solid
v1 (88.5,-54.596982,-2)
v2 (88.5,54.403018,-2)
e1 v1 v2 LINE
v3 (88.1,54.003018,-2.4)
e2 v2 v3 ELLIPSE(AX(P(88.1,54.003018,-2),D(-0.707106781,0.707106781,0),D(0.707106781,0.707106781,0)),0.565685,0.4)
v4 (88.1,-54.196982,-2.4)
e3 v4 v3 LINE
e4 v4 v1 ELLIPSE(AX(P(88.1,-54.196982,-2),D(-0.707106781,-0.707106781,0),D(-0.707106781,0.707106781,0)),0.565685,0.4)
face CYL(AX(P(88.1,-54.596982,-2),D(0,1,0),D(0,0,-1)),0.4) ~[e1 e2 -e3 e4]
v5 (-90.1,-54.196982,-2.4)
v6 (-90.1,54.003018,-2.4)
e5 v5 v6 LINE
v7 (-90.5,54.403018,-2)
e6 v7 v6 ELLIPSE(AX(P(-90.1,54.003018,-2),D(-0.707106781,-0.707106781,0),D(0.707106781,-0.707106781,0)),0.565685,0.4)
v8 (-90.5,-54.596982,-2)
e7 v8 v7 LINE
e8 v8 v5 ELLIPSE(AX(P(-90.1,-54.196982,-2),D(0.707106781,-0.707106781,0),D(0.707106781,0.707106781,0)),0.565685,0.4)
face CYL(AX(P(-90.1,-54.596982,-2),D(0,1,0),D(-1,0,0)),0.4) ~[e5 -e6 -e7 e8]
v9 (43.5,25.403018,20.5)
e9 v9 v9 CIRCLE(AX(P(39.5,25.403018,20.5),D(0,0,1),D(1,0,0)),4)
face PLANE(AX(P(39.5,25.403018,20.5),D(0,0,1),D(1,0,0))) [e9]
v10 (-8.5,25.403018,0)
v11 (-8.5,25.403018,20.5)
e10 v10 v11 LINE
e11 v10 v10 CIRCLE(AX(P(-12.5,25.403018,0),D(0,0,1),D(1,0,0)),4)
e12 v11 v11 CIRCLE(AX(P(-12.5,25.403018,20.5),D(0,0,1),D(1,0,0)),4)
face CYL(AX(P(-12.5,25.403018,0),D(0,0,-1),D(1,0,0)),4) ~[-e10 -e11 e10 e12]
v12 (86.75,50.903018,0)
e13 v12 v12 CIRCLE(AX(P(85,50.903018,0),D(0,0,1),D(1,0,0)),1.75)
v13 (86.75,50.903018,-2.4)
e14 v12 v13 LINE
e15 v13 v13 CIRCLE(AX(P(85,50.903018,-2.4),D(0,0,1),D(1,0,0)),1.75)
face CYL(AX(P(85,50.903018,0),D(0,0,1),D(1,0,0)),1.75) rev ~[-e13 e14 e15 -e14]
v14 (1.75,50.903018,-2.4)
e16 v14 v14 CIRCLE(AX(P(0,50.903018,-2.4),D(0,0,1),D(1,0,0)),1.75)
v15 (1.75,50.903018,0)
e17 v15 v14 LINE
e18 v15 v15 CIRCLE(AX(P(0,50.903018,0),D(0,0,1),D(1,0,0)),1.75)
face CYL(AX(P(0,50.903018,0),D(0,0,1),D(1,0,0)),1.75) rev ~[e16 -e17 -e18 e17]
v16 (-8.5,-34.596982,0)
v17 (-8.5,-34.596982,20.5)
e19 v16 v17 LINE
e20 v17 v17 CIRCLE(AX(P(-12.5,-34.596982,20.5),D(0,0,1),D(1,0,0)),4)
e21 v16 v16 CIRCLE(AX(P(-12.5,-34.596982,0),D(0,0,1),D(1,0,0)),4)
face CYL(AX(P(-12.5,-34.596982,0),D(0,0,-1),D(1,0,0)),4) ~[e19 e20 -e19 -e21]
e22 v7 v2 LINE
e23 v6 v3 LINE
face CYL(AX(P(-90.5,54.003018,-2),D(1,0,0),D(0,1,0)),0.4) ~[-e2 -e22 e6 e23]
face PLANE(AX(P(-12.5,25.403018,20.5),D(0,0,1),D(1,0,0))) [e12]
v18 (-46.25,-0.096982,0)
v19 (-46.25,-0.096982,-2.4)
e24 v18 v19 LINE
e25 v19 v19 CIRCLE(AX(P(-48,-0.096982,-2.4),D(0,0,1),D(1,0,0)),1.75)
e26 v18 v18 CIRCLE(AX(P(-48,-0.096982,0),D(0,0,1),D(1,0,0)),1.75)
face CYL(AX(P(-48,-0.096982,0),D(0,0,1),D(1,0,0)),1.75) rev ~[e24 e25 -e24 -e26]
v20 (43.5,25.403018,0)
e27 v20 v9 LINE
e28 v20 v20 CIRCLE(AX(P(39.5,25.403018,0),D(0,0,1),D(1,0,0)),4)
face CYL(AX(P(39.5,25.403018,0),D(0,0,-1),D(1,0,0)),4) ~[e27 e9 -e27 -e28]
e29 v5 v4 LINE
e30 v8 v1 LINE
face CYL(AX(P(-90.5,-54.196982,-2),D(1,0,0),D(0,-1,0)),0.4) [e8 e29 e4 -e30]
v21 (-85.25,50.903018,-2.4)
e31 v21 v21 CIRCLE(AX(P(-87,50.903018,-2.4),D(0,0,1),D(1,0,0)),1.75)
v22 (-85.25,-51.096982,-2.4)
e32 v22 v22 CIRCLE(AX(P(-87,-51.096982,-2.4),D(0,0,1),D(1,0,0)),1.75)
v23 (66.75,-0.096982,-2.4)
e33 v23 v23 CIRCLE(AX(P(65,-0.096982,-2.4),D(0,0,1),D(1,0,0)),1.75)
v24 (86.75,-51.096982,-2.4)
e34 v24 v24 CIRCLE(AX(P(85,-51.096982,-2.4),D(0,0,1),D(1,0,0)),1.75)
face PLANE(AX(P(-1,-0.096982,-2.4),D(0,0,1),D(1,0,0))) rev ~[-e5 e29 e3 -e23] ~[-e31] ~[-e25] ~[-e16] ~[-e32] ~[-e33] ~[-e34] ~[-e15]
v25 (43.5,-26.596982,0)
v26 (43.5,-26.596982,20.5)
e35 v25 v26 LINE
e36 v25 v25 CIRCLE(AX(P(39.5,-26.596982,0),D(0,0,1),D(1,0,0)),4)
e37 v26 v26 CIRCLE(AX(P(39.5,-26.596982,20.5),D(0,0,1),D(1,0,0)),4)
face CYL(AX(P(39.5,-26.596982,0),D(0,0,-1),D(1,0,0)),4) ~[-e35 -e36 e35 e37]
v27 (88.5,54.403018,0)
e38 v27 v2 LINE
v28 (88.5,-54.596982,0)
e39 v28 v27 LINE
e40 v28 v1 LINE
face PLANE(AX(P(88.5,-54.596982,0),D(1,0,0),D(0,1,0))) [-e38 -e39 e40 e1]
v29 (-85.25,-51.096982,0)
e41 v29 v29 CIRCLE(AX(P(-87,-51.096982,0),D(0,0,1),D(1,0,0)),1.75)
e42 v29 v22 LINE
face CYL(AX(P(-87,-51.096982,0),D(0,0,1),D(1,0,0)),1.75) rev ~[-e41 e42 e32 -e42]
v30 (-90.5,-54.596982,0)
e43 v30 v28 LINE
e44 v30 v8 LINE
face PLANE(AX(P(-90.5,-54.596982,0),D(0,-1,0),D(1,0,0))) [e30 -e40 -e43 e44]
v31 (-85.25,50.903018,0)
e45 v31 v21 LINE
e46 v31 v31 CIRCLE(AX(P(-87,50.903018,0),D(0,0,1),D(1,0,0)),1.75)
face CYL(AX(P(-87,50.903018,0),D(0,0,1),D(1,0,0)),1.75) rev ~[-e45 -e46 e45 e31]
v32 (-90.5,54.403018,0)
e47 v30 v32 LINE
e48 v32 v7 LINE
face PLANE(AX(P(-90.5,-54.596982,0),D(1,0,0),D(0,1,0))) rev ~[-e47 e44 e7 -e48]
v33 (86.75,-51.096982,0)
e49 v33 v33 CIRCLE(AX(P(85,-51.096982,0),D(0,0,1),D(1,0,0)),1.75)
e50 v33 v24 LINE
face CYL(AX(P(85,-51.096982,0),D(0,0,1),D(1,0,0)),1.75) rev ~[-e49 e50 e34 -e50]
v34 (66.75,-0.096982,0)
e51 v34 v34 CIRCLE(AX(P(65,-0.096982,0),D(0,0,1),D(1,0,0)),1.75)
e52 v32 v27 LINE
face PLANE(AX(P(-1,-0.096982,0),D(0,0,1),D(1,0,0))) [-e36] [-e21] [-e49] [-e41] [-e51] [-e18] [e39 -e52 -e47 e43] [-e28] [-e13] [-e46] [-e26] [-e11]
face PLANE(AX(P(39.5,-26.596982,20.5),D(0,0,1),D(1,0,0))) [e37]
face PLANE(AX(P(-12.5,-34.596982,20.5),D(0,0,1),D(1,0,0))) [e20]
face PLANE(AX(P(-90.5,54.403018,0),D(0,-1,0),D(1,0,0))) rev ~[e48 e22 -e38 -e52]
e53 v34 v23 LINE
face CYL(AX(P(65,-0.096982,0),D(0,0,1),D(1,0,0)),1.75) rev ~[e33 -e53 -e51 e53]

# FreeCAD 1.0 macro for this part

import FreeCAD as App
import Part
import Sketcher
Q = App.Units.Quantity


def edges_at(feature, points):
    """Names of the edges that pass closest to the given points."""
    edges = feature.Shape.Edges
    near = lambda p: min(range(len(edges)), key=lambda i: edges[i].distToShape(Part.Vertex(*p))[0])
    return sorted({f"Edge{near(p) + 1}" for p in points})

doc = App.newDocument("Part")
body = doc.addObject("PartDesign::Body", "Body")

sketch1 = body.newObject("Sketcher::SketchObject", "Sketch")
sketch1.AttachmentSupport = (doc.getObject("XY_Plane"), [""])
sketch1.MapMode = "FlatFace"
sketch1.addGeometry([
    Part.LineSegment(App.Vector(-90.5, 54.4, 0), App.Vector(-90.5, -54.6, 0)),
    Part.LineSegment(App.Vector(-90.5, -54.6, 0), App.Vector(88.5, -54.6, 0)),
    Part.LineSegment(App.Vector(88.5, -54.6, 0), App.Vector(88.5, 54.4, 0)),
    Part.LineSegment(App.Vector(88.5, 54.4, 0), App.Vector(-90.5, 54.4, 0)),
    Part.Circle(App.Vector(-87, -51.1, 0), App.Vector(0, 0, 1), 1.8),
    Part.Circle(App.Vector(85, -51.1, 0), App.Vector(0, 0, 1), 1.8),
    Part.Circle(App.Vector(-48, -0.1, 0), App.Vector(0, 0, 1), 1.8),
    Part.Circle(App.Vector(-87, 50.9, 0), App.Vector(0, 0, 1), 1.8),
    Part.Circle(App.Vector(65, -0.1, 0), App.Vector(0, 0, 1), 1.8),
    Part.Circle(App.Vector(0, 50.9, 0), App.Vector(0, 0, 1), 1.8),
    Part.Circle(App.Vector(85, 50.9, 0), App.Vector(0, 0, 1), 1.8),
], False)
sketch1.addConstraint([
    Sketcher.Constraint("Coincident", 0, 2, 1, 1),
    Sketcher.Constraint("Coincident", 1, 2, 2, 1),
    Sketcher.Constraint("Coincident", 2, 2, 3, 1),
    Sketcher.Constraint("Coincident", 3, 2, 0, 1),
    Sketcher.Constraint("Vertical", 0),
    Sketcher.Constraint("Horizontal", 1),
    Sketcher.Constraint("Vertical", 2),
    Sketcher.Constraint("Horizontal", 3),
    Sketcher.Constraint("Equal", 4, 5),
    Sketcher.Constraint("Equal", 5, 6),
    Sketcher.Constraint("Equal", 6, 7),
    Sketcher.Constraint("Equal", 7, 8),
    Sketcher.Constraint("Equal", 8, 9),
    Sketcher.Constraint("Equal", 9, 10),
    Sketcher.Constraint("PointOnObject", 9, 3, -2),
    Sketcher.Constraint("Horizontal", 4, 3, 5, 3),
    Sketcher.Constraint("Horizontal", 6, 3, 8, 3),
    Sketcher.Constraint("Horizontal", 7, 3, 9, 3),
    Sketcher.Constraint("Horizontal", 9, 3, 10, 3),
    Sketcher.Constraint("Vertical", 4, 3, 7, 3),
    Sketcher.Constraint("Vertical", 5, 3, 10, 3),
    Sketcher.Constraint("Diameter", 4, Q("3.5 mm")),
    Sketcher.Constraint("DistanceX", 1, 1, 1, 2, Q("179 mm")),
    Sketcher.Constraint("DistanceY", 0, 2, 0, 1, Q("109 mm")),
    Sketcher.Constraint("DistanceX", 4, 3, -1, 1, Q("87 mm")),
    Sketcher.Constraint("DistanceX", -1, 1, 5, 3, Q("85 mm")),
    Sketcher.Constraint("DistanceX", 6, 3, -1, 1, Q("48 mm")),
    Sketcher.Constraint("DistanceX", -1, 1, 8, 3, Q("65 mm")),
    Sketcher.Constraint("DistanceY", 4, 3, 6, 3, Q("51 mm")),
    Sketcher.Constraint("DistanceY", 6, 3, 7, 3, Q("51 mm")),
    Sketcher.Constraint("DistanceX", 0, 2, -1, 1, Q("90.5 mm")),
    Sketcher.Constraint("DistanceY", 0, 2, 4, 3, Q("3.5 mm")),
    Sketcher.Constraint("DistanceY", 4, 3, -1, 1, Q("51.096982 mm")),
])
pad1 = body.newObject("PartDesign::Pad", "Pad")
pad1.Profile = sketch1
pad1.Length = 2.4
pad1.Reversed = True

sketch2 = body.newObject("Sketcher::SketchObject", "Sketch001")
sketch2.AttachmentSupport = (doc.getObject("XY_Plane"), [""])
sketch2.MapMode = "FlatFace"
sketch2.addGeometry([
    Part.Circle(App.Vector(-12.5, 25.4, 0), App.Vector(0, 0, 1), 4),
    Part.Circle(App.Vector(-12.5, -34.6, 0), App.Vector(0, 0, 1), 4),
    Part.Circle(App.Vector(39.5, -26.6, 0), App.Vector(0, 0, 1), 4),
    Part.Circle(App.Vector(39.5, 25.4, 0), App.Vector(0, 0, 1), 4),
], False)
sketch2.addConstraint([
    Sketcher.Constraint("Equal", 0, 1),
    Sketcher.Constraint("Equal", 1, 2),
    Sketcher.Constraint("Equal", 2, 3),
    Sketcher.Constraint("Horizontal", 0, 3, 3, 3),
    Sketcher.Constraint("Vertical", 0, 3, 1, 3),
    Sketcher.Constraint("Vertical", 2, 3, 3, 3),
    Sketcher.Constraint("Diameter", 0, Q("8 mm")),
    Sketcher.Constraint("DistanceY", 1, 3, 0, 3, Q("60 mm")),
    Sketcher.Constraint("DistanceX", 1, 3, 2, 3, Q("52 mm")),
    Sketcher.Constraint("DistanceY", 1, 3, 2, 3, Q("8 mm")),
    Sketcher.Constraint("DistanceX", 0, 3, -1, 1, Q("12.5 mm")),
    Sketcher.Constraint("DistanceY", 1, 3, -1, 1, Q("34.596982 mm")),
])
pad2 = body.newObject("PartDesign::Pad", "Pad001")
pad2.Profile = sketch2
pad2.Length = 20.5
doc.recompute()

fillet = body.newObject("PartDesign::Fillet", "Fillet")
fillet.Base = (pad2, edges_at(pad2, [
    (-1, 54.403, -2.4),
    (-90.5, -0.097, -2.4),
    (88.5, -0.097, -2.4),
    (-1, -54.597, -2.4),
]))
fillet.Radius = 0.4

doc.recompute()
